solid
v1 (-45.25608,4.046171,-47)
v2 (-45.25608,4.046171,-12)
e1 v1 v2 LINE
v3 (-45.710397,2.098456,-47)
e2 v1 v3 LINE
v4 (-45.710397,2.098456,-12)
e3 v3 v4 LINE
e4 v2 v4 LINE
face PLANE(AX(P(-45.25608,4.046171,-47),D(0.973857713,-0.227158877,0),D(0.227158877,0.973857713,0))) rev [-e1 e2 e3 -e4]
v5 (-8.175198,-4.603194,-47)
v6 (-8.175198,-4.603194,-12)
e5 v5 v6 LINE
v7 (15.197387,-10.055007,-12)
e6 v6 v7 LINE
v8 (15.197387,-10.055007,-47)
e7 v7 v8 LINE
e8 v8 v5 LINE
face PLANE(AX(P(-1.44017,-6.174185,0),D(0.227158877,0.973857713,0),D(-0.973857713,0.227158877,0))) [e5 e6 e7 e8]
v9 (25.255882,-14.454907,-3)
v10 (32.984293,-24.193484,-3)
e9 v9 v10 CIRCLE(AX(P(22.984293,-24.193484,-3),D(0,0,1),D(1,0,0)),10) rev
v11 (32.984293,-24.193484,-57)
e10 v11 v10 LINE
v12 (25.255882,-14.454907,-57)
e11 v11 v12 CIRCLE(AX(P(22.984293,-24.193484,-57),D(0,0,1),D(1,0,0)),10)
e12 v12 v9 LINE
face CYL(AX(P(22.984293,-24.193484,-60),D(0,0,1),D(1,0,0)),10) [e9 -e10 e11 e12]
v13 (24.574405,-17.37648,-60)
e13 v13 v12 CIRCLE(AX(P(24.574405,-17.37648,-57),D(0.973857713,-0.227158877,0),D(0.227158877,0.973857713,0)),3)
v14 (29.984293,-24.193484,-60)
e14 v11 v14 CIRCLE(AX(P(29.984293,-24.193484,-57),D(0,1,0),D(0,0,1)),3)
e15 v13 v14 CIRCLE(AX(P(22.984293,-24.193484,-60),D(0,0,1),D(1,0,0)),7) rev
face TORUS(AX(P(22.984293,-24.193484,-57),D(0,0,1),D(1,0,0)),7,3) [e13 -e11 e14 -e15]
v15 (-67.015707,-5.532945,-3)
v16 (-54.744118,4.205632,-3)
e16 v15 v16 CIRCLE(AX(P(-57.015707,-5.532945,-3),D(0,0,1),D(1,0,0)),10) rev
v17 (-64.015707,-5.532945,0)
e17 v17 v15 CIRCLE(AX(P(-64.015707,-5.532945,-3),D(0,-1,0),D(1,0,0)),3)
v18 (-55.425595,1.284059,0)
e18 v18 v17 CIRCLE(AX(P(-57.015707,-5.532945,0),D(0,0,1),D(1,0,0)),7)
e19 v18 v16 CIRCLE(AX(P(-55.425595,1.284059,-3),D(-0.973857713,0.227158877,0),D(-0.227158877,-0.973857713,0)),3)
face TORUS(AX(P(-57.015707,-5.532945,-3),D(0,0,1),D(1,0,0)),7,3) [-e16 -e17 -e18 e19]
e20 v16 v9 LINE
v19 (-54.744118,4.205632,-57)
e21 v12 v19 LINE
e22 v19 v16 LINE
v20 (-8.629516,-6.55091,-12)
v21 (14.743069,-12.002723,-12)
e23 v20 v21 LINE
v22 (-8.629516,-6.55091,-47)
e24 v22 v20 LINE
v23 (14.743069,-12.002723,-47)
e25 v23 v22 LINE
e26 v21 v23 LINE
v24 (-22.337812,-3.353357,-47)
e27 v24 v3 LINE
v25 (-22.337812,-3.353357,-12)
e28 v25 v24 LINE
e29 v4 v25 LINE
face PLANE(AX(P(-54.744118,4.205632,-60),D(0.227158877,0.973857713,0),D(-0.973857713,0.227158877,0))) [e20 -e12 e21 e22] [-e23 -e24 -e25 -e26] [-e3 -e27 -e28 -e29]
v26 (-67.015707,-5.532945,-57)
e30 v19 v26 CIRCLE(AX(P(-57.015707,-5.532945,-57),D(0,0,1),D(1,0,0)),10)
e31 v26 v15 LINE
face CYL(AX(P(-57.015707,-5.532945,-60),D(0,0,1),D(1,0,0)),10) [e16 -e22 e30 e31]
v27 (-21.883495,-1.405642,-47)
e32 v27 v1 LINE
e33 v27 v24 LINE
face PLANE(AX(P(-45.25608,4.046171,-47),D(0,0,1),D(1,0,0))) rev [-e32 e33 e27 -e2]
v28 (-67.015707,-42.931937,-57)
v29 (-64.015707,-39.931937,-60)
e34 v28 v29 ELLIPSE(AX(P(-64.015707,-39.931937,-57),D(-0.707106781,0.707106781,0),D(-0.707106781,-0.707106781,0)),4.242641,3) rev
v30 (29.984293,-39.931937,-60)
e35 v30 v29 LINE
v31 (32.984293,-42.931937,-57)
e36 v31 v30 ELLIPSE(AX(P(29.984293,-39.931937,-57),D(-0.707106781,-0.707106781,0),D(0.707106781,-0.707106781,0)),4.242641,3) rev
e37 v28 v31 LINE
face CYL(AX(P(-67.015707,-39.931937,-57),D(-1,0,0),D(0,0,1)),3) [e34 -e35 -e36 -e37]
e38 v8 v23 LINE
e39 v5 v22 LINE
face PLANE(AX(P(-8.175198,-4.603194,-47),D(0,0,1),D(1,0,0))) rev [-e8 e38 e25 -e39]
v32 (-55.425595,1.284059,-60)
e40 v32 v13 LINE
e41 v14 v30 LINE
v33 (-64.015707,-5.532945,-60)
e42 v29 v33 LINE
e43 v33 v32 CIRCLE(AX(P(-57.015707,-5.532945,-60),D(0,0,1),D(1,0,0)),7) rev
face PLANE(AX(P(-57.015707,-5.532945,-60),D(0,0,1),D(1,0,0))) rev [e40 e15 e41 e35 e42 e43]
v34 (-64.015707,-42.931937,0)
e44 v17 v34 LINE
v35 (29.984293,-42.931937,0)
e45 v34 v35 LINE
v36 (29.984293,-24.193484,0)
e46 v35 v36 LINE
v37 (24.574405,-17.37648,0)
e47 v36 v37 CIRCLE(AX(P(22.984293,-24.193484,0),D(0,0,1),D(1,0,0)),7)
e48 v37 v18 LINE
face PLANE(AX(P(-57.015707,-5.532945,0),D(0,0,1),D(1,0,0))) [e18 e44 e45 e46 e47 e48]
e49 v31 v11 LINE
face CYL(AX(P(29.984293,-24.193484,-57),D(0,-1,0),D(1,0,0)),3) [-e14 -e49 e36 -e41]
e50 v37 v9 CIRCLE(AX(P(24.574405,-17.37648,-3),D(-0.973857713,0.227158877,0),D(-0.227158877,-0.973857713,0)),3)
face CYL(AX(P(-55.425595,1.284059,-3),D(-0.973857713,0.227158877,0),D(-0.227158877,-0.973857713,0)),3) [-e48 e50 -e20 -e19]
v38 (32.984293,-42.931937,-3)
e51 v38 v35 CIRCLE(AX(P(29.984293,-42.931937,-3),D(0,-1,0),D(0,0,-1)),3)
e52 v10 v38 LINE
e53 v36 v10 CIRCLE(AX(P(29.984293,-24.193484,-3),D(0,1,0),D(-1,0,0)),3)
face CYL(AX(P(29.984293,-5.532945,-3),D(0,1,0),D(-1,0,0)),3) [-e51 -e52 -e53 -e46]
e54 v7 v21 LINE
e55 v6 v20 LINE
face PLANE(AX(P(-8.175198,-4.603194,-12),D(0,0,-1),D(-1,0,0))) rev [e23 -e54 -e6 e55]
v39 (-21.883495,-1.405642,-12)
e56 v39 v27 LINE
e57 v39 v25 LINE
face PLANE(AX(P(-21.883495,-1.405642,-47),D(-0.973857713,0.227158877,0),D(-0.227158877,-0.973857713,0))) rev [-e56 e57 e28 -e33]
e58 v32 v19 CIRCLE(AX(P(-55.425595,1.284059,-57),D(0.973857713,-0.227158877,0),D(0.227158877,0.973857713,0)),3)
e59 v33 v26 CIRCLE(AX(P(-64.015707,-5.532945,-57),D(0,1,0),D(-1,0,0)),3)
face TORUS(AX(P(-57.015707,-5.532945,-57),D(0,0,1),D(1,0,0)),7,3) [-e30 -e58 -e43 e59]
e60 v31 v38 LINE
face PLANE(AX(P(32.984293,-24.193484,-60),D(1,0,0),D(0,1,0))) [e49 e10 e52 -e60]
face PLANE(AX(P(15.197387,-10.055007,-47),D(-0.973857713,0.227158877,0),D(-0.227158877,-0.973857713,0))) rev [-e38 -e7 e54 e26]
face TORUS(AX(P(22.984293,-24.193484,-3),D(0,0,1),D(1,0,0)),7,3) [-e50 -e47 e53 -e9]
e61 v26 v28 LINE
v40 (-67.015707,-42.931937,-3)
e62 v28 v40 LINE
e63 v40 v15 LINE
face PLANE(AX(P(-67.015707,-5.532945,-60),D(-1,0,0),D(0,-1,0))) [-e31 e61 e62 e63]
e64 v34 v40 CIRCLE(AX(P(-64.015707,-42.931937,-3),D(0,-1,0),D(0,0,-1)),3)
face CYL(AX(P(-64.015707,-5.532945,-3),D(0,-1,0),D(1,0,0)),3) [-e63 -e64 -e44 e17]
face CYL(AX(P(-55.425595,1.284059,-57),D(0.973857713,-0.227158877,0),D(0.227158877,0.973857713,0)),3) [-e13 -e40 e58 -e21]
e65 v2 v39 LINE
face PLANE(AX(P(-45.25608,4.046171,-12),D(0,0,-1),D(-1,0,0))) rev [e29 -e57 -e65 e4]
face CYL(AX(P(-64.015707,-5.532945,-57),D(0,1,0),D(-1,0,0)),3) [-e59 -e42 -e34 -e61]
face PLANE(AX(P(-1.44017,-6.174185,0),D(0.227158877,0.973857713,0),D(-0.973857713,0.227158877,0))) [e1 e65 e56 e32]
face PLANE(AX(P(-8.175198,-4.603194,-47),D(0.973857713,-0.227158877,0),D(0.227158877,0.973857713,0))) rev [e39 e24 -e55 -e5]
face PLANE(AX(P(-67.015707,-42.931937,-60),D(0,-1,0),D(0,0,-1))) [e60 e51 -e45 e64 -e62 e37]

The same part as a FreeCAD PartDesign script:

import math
import FreeCAD as App
import Part
import Sketcher


def edges_at(feature, points):
    """Names of the edges that pass closest to the given points."""
    edges = feature.Shape.Edges
    near = lambda p: min(range(len(edges)), key=lambda i: edges[i].distToShape(Part.Vertex(*p))[0])
    return sorted({f"Edge{near(p) + 1}" for p in points})


def add_polygon(sketch, points):
    """Adds a closed chain of lines whose ends are joined by coincident constraints."""
    first, n = sketch.GeometryCount, len(points)
    for a, b in zip(points, points[1:] + points[:1]):
        sketch.addGeometry(Part.LineSegment(App.Vector(*a, 0), App.Vector(*b, 0)), False)
    for i in range(n):
        sketch.addConstraint(Sketcher.Constraint("Coincident", first + i, 2, first + (i + 1) % n, 1))

doc = App.newDocument("Part")
params = doc.addObject("Spreadsheet::Sheet", "Params")
for row, (alias, value) in enumerate([
    ("sketch1_radius", "10 mm"),
    ("sketch1_width", "100 mm"),
    ("pad1_length", "60 mm"),
    ("sketch2_width", "24 mm"),
    ("sketch2_height", "35 mm"),
    ("pad2_length", "2 mm"),
    ("fillet_radius", "3 mm"),
], start=1):
    params.set(f"A{row}", alias)
    params.set(f"B{row}", "=" + value)
    params.setAlias(f"B{row}", alias)

body = doc.addObject("PartDesign::Body", "Body")

sketch1 = body.newObject("Sketcher::SketchObject", "Sketch")
sketch1.AttachmentSupport = (doc.getObject("XY_Plane"), [""])
sketch1.MapMode = "FlatFace"
sketch1.addGeometry(Part.LineSegment(App.Vector(25, -14, 0), App.Vector(-55, 4, 0)), False)
sketch1.addGeometry(Part.ArcOfCircle(Part.Circle(App.Vector(-57, -6, 0), App.Vector(0, 0, 1), 10), math.radians(77), math.radians(180)), False)
sketch1.addGeometry(Part.LineSegment(App.Vector(-67, -6, 0), App.Vector(-67, -43, 0)), False)
sketch1.addGeometry(Part.LineSegment(App.Vector(-67, -43, 0), App.Vector(33, -43, 0)), False)
sketch1.addGeometry(Part.LineSegment(App.Vector(33, -43, 0), App.Vector(33, -24, 0)), False)
sketch1.addGeometry(Part.ArcOfCircle(Part.Circle(App.Vector(23, -24, 0), App.Vector(0, 0, 1), 10), math.radians(0), math.radians(77)), False)
sketch1.addConstraint(Sketcher.Constraint("Tangent", 0, 2, 1, 1))
sketch1.addConstraint(Sketcher.Constraint("Tangent", 1, 2, 2, 1))
sketch1.addConstraint(Sketcher.Constraint("Coincident", 2, 2, 3, 1))
sketch1.addConstraint(Sketcher.Constraint("Coincident", 3, 2, 4, 1))
sketch1.addConstraint(Sketcher.Constraint("Tangent", 4, 2, 5, 1))
sketch1.addConstraint(Sketcher.Constraint("Tangent", 5, 2, 0, 1))
sketch1.addConstraint(Sketcher.Constraint("Vertical", 2))
sketch1.addConstraint(Sketcher.Constraint("Horizontal", 3))
sketch1.addConstraint(Sketcher.Constraint("Vertical", 4))
sketch1.addConstraint(Sketcher.Constraint("Equal", 1, 5))
sketch1.addConstraint(Sketcher.Constraint("Radius", 1, 10.0))
sketch1.addConstraint(Sketcher.Constraint("DistanceX", 3, 1, 3, 2, 100.0))
sketch1.addConstraint(Sketcher.Constraint("DistanceY", 2, 2, 2, 1, 37.398992))
sketch1.addConstraint(Sketcher.Constraint("DistanceY", 4, 1, 4, 2, 18.738453))
sketch1.addConstraint(Sketcher.Constraint("DistanceX", 0, 2, -1, 1, 54.744118))
sketch1.addConstraint(Sketcher.Constraint("DistanceY", 1, 3, -1, 1, 5.532945))
sketch1.setExpression("Constraints[10]", "Params.sketch1_radius")
sketch1.setExpression("Constraints[11]", "Params.sketch1_width")
pad1 = body.newObject("PartDesign::Pad", "Pad")
pad1.Profile = sketch1
pad1.setExpression("Length", "Params.pad1_length")
pad1.Reversed = True

sketch2 = body.newObject("Sketcher::SketchObject", "Sketch001")
sketch2.Placement = App.Placement(App.Vector(-1.894488, -8.1219, 0), App.Rotation(App.Vector(0.973857713, -0.227158877, 0), App.Vector(0, 0, -1.000000001), App.Vector(0.227158877, 0.973857713, 0), "ZXY"))
add_polygon(sketch2, [(-45, 47), (-45, 12), (-21, 12), (-21, 47)])
add_polygon(sketch2, [(-7, 47), (-7, 12), (17, 12), (17, 47)])
sketch2.addConstraint(Sketcher.Constraint("Vertical", 0))
sketch2.addConstraint(Sketcher.Constraint("Horizontal", 1))
sketch2.addConstraint(Sketcher.Constraint("Vertical", 2))
sketch2.addConstraint(Sketcher.Constraint("Horizontal", 3))
sketch2.addConstraint(Sketcher.Constraint("Vertical", 4))
sketch2.addConstraint(Sketcher.Constraint("Horizontal", 5))
sketch2.addConstraint(Sketcher.Constraint("Vertical", 6))
sketch2.addConstraint(Sketcher.Constraint("Horizontal", 7))
sketch2.addConstraint(Sketcher.Constraint("Horizontal", 1, 2, 4, 2))
sketch2.addConstraint(Sketcher.Constraint("Horizontal", 3, 2, 6, 2))
sketch2.addConstraint(Sketcher.Constraint("Equal", 3, 5))
sketch2.addConstraint(Sketcher.Constraint("DistanceX", 1, 1, 1, 2, 24.0))
sketch2.addConstraint(Sketcher.Constraint("DistanceY", 0, 2, 0, 1, 35.0))
sketch2.addConstraint(Sketcher.Constraint("DistanceY", -1, 1, 0, 2, 12.0))
sketch2.addConstraint(Sketcher.Constraint("DistanceX", 0, 2, -1, 1, 44.992106))
sketch2.addConstraint(Sketcher.Constraint("DistanceX", 4, 2, -1, 1, 6.915824))
sketch2.setExpression("Constraints[19]", "Params.sketch2_width")
sketch2.setExpression("Constraints[20]", "Params.sketch2_height")
pad2 = body.newObject("PartDesign::Pad", "Pad001")
pad2.Profile = sketch2
pad2.setExpression("Length", "Params.pad2_length")
doc.recompute()

fillet = body.newObject("PartDesign::Fillet", "Fillet")
fillet.Base = (pad2, edges_at(pad2, [
    (-14.744, -5.125, -60),
    (-63.232, 2.3, -60),
    (-67.016, -24.232, -60),
    (-17.016, -42.932, -60),
    (32.984, -33.563, -60),
    (-67.016, -24.232, 0),
    (-63.232, 2.3, 0),
    (-14.744, -5.125, 0),
    (30.817, -17.977, 0),
    (32.984, -33.563, 0),
    (30.817, -17.977, -60),
]))
fillet.setExpression("Radius", "Params.fillet_radius")

doc.recompute()
